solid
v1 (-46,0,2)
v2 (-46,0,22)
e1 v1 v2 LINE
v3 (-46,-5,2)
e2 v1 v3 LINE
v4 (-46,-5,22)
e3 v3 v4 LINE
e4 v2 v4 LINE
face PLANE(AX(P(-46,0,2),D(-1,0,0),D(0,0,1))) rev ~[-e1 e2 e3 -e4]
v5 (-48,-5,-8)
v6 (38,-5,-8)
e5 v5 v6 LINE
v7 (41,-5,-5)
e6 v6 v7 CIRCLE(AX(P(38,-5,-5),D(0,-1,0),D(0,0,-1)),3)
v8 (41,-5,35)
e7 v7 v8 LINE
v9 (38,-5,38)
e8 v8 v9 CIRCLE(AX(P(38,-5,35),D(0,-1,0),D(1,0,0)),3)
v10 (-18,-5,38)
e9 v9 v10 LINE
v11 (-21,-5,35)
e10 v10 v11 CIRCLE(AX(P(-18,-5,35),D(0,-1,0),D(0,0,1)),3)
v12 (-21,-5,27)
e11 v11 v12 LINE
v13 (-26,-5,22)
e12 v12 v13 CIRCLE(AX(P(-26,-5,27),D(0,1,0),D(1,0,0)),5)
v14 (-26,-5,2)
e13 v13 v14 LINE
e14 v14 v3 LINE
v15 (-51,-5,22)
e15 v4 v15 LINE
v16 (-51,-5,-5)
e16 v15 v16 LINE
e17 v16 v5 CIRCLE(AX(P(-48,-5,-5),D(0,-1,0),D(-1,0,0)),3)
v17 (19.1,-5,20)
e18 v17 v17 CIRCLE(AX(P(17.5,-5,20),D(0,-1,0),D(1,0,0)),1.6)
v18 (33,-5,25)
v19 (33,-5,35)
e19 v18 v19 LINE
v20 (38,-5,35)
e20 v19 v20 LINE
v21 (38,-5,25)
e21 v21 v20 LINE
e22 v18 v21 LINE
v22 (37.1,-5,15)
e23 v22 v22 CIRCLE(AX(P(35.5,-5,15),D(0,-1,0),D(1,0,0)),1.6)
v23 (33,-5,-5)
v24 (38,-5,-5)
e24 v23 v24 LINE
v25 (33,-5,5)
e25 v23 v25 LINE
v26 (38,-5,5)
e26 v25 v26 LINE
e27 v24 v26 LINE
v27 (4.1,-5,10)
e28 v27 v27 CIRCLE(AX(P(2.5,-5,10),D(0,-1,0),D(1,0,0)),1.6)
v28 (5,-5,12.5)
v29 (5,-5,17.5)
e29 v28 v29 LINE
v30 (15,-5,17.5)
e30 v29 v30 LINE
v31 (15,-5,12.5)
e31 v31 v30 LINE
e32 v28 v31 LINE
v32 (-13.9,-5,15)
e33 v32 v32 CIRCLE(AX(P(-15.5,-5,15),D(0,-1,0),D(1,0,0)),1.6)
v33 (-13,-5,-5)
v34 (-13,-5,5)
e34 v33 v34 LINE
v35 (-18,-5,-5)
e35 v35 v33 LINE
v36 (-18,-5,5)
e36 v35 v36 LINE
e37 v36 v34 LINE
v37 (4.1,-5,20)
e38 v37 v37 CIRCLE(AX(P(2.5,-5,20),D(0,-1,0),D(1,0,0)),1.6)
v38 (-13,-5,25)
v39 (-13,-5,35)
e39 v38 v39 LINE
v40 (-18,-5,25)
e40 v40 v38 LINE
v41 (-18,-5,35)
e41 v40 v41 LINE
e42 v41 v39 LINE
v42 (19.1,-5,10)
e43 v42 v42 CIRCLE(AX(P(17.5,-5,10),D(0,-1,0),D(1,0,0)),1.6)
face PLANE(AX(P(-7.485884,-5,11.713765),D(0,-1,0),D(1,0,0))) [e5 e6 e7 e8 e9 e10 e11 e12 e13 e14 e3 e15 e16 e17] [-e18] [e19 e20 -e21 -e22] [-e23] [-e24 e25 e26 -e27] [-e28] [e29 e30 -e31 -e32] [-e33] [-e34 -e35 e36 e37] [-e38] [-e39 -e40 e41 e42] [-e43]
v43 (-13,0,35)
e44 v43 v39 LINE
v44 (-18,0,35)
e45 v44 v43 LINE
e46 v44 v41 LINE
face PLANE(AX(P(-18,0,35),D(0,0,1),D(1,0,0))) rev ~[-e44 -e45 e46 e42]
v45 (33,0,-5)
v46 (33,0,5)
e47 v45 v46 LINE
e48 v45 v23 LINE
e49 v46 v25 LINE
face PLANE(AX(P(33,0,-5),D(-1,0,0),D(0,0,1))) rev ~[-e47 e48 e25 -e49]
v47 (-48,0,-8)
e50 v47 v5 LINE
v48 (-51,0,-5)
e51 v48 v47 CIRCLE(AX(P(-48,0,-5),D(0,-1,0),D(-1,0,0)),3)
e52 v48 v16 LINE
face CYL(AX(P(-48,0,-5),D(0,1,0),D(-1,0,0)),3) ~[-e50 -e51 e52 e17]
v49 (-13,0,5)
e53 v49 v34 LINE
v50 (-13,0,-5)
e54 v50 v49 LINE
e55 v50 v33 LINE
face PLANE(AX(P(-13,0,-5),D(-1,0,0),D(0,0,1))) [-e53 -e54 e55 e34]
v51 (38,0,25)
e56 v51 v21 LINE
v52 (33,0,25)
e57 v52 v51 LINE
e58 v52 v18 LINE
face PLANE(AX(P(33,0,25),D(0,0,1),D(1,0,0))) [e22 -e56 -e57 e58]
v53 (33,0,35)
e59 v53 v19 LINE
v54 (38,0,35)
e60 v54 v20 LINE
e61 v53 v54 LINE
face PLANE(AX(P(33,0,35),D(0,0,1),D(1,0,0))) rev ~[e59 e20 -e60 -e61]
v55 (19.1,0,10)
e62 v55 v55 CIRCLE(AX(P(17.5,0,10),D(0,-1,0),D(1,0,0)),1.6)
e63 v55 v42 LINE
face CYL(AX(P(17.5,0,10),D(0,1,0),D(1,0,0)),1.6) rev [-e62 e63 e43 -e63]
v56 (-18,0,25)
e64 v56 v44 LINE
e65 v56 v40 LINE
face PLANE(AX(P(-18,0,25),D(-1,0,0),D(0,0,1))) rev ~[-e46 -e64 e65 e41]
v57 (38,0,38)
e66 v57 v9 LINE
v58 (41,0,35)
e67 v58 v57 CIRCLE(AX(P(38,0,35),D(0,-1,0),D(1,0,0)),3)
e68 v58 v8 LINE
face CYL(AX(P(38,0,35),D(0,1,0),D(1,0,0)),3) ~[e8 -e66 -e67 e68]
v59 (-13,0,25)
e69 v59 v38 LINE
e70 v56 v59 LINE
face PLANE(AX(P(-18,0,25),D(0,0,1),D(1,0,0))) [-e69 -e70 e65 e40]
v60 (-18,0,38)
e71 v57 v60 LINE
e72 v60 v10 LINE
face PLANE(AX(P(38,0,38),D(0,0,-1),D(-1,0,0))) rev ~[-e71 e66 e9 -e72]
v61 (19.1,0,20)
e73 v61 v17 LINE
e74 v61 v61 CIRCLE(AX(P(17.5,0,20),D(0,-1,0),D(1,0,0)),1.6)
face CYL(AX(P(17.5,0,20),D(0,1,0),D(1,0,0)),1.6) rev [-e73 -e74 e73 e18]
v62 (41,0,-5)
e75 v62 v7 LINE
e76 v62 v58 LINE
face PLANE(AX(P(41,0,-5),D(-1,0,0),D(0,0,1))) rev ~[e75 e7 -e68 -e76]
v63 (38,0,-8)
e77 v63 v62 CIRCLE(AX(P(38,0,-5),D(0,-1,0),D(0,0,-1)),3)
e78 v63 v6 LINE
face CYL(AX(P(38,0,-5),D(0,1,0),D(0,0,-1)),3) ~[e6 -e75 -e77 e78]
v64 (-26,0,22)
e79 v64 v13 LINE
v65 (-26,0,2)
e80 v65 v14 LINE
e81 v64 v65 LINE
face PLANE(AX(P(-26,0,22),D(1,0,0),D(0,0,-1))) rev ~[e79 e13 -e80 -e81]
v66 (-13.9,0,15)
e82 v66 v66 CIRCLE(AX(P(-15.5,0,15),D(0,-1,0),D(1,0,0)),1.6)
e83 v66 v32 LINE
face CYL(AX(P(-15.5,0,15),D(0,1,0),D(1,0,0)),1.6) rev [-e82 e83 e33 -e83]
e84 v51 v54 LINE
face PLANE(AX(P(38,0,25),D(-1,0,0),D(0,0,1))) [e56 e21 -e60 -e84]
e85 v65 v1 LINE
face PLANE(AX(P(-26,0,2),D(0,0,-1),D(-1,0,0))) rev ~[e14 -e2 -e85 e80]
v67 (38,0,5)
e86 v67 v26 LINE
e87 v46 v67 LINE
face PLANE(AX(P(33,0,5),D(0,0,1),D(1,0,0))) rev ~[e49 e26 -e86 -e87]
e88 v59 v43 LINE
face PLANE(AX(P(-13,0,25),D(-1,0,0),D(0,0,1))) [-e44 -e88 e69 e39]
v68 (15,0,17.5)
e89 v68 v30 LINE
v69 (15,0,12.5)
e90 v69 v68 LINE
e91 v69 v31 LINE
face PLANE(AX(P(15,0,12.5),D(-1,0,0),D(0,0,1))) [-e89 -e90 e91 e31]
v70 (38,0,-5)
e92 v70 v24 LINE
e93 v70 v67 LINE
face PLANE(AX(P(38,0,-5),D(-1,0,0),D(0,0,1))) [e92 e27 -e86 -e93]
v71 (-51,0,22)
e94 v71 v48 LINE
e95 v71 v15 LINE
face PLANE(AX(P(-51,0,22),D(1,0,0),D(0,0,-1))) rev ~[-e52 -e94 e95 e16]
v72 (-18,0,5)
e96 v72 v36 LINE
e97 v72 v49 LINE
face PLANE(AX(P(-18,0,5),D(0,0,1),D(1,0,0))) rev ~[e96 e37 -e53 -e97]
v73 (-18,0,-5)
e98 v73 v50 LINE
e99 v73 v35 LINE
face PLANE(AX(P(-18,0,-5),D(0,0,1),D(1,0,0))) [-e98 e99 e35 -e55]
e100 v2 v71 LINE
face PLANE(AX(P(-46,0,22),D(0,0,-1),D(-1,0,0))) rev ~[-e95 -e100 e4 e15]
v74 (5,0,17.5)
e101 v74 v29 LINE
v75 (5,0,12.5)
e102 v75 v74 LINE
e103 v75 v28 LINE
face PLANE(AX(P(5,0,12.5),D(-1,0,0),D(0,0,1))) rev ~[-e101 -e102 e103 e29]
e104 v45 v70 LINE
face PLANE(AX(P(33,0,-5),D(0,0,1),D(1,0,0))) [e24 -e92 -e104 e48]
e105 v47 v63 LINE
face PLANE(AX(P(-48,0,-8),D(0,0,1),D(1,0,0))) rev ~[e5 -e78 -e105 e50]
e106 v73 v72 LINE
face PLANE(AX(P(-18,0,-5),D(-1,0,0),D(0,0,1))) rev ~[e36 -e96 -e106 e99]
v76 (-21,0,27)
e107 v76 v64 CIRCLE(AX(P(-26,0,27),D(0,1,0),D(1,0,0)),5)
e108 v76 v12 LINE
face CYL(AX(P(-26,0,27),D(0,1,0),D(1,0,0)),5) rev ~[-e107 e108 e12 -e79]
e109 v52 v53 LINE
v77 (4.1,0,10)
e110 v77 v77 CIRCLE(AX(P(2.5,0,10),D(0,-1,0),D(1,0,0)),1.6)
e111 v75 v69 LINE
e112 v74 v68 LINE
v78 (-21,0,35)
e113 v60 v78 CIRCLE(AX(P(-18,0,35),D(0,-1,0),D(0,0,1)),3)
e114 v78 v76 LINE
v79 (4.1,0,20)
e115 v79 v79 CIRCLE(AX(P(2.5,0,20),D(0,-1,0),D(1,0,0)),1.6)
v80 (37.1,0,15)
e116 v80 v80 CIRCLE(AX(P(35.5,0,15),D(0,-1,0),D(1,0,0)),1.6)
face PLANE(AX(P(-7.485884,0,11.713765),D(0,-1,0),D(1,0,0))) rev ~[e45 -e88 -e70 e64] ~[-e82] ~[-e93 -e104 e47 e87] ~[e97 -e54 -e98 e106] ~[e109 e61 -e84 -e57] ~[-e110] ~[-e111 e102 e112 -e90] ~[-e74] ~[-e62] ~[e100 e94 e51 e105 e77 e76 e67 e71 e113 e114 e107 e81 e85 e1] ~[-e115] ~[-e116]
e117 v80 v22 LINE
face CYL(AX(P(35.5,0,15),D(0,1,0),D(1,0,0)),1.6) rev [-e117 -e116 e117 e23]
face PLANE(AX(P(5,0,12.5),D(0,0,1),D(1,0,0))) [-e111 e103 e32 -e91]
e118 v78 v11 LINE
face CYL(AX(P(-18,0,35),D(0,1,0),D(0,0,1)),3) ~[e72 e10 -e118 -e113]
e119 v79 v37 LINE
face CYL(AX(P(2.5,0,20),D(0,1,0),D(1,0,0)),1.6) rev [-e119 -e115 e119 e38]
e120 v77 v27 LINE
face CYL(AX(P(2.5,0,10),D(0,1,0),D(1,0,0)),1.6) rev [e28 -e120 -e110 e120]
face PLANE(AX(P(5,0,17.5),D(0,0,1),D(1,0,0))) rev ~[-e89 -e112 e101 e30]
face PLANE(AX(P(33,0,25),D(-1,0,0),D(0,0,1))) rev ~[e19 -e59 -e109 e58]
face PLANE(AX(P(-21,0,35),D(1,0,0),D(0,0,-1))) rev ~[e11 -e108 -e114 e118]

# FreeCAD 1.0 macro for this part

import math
import FreeCAD as App
import Part
import Sketcher

V = App.Vector
Q = App.Units.Quantity

doc = App.newDocument("Part")
body = doc.addObject("PartDesign::Body", "Body")

# Sketch on XZ plane
sketch1 = body.newObject("Sketcher::SketchObject", "Sketch")
sketch1.AttachmentSupport = (doc.getObject("XZ_Plane"), [""])
sketch1.MapMode = "FlatFace"
sketch1.addGeometry([
    Part.LineSegment(V(-21, 35, 0), V(-21, 27, 0)),  # 0
    Part.ArcOfCircle(Part.Circle(V(-26, 27, 0), V(0, 0, 1), 5), math.radians(-90), math.radians(0)),  # 1
    Part.LineSegment(V(-26, 22, 0), V(-26, 2, 0)),  # 2
    Part.LineSegment(V(-26, 2, 0), V(-46, 2, 0)),  # 3
    Part.LineSegment(V(-46, 2, 0), V(-46, 22, 0)),  # 4
    Part.LineSegment(V(-46, 22, 0), V(-51, 22, 0)),  # 5
    Part.LineSegment(V(-51, 22, 0), V(-51, -5, 0)),  # 6
    Part.ArcOfCircle(Part.Circle(V(-48, -5, 0), V(0, 0, 1), 3), math.radians(180), math.radians(270)),  # 7
    Part.LineSegment(V(-48, -8, 0), V(38, -8, 0)),  # 8
    Part.ArcOfCircle(Part.Circle(V(38, -5, 0), V(0, 0, 1), 3), math.radians(-90), math.radians(0)),  # 9
    Part.LineSegment(V(41, -5, 0), V(41, 35, 0)),  # 10
    Part.ArcOfCircle(Part.Circle(V(38, 35, 0), V(0, 0, 1), 3), math.radians(0), math.radians(90)),  # 11
    Part.LineSegment(V(38, 38, 0), V(-18, 38, 0)),  # 12
    Part.ArcOfCircle(Part.Circle(V(-18, 35, 0), V(0, 0, 1), 3), math.radians(90), math.radians(180)),  # 13
    Part.LineSegment(V(-13, -5, 0), V(-18, -5, 0)),  # 14
    Part.LineSegment(V(-18, -5, 0), V(-18, 5, 0)),  # 15
    Part.LineSegment(V(-18, 5, 0), V(-13, 5, 0)),  # 16
    Part.LineSegment(V(-13, 5, 0), V(-13, -5, 0)),  # 17
    Part.Circle(V(2.5, 10, 0), V(0, 0, 1), 1.6),  # 18
    Part.LineSegment(V(38, -5, 0), V(33, -5, 0)),  # 19
    Part.LineSegment(V(33, -5, 0), V(33, 5, 0)),  # 20
    Part.LineSegment(V(33, 5, 0), V(38, 5, 0)),  # 21
    Part.LineSegment(V(38, 5, 0), V(38, -5, 0)),  # 22
    Part.Circle(V(17.5, 10, 0), V(0, 0, 1), 1.6),  # 23
    Part.Circle(V(-15.5, 15, 0), V(0, 0, 1), 1.6),  # 24
    Part.Circle(V(2.5, 20, 0), V(0, 0, 1), 1.6),  # 25
    Part.LineSegment(V(-13, 25, 0), V(-18, 25, 0)),  # 26
    Part.LineSegment(V(-18, 25, 0), V(-18, 35, 0)),  # 27
    Part.LineSegment(V(-18, 35, 0), V(-13, 35, 0)),  # 28
    Part.LineSegment(V(-13, 35, 0), V(-13, 25, 0)),  # 29
    Part.LineSegment(V(15, 12.5, 0), V(5, 12.5, 0)),  # 30
    Part.LineSegment(V(5, 12.5, 0), V(5, 17.5, 0)),  # 31
    Part.LineSegment(V(5, 17.5, 0), V(15, 17.5, 0)),  # 32
    Part.LineSegment(V(15, 17.5, 0), V(15, 12.5, 0)),  # 33
    Part.Circle(V(17.5, 20, 0), V(0, 0, 1), 1.6),  # 34
    Part.Circle(V(35.5, 15, 0), V(0, 0, 1), 1.6),  # 35
    Part.LineSegment(V(38, 25, 0), V(33, 25, 0)),  # 36
    Part.LineSegment(V(33, 25, 0), V(33, 35, 0)),  # 37
    Part.LineSegment(V(33, 35, 0), V(38, 35, 0)),  # 38
    Part.LineSegment(V(38, 35, 0), V(38, 25, 0)),  # 39
], False)
sketch1.addConstraint([
    Sketcher.Constraint("Tangent", 0, 2, 1, 2),
    Sketcher.Constraint("Coincident", 1, 1, 2, 1),
    Sketcher.Constraint("Coincident", 2, 2, 3, 1),
    Sketcher.Constraint("Coincident", 3, 2, 4, 1),
    Sketcher.Constraint("Coincident", 4, 2, 5, 1),
    Sketcher.Constraint("Coincident", 5, 2, 6, 1),
    Sketcher.Constraint("Tangent", 6, 2, 7, 1),
    Sketcher.Constraint("Tangent", 7, 2, 8, 1),
    Sketcher.Constraint("Tangent", 8, 2, 9, 1),
    Sketcher.Constraint("Tangent", 9, 2, 10, 1),
    Sketcher.Constraint("Tangent", 10, 2, 11, 1),
    Sketcher.Constraint("Tangent", 11, 2, 12, 1),
    Sketcher.Constraint("Tangent", 12, 2, 13, 1),
    Sketcher.Constraint("Tangent", 13, 2, 0, 1),
    Sketcher.Constraint("Coincident", 14, 2, 15, 1),
    Sketcher.Constraint("Coincident", 15, 2, 16, 1),
    Sketcher.Constraint("Coincident", 16, 2, 17, 1),
    Sketcher.Constraint("Coincident", 17, 2, 14, 1),
    Sketcher.Constraint("Coincident", 19, 2, 20, 1),
    Sketcher.Constraint("Coincident", 20, 2, 21, 1),
    Sketcher.Constraint("Coincident", 21, 2, 22, 1),
    Sketcher.Constraint("Coincident", 22, 2, 19, 1),
    Sketcher.Constraint("Coincident", 26, 2, 27, 1),
    Sketcher.Constraint("Coincident", 27, 2, 28, 1),
    Sketcher.Constraint("Coincident", 28, 2, 29, 1),
    Sketcher.Constraint("Coincident", 29, 2, 26, 1),
    Sketcher.Constraint("Coincident", 30, 2, 31, 1),
    Sketcher.Constraint("Coincident", 31, 2, 32, 1),
    Sketcher.Constraint("Coincident", 32, 2, 33, 1),
    Sketcher.Constraint("Coincident", 33, 2, 30, 1),
    Sketcher.Constraint("Coincident", 36, 2, 37, 1),
    Sketcher.Constraint("Coincident", 37, 2, 38, 1),
    Sketcher.Constraint("Coincident", 38, 2, 39, 1),
    Sketcher.Constraint("Coincident", 39, 2, 36, 1),
    Sketcher.Constraint("Vertical", 0),
    Sketcher.Constraint("Vertical", 2),
    Sketcher.Constraint("Horizontal", 3),
    Sketcher.Constraint("Vertical", 4),
    Sketcher.Constraint("Horizontal", 5),
    Sketcher.Constraint("Vertical", 6),
    Sketcher.Constraint("Horizontal", 8),
    Sketcher.Constraint("Vertical", 10),
    Sketcher.Constraint("Horizontal", 12),
    Sketcher.Constraint("Horizontal", 14),
    Sketcher.Constraint("Vertical", 15),
    Sketcher.Constraint("Horizontal", 16),
    Sketcher.Constraint("Vertical", 17),
    Sketcher.Constraint("Horizontal", 19),
    Sketcher.Constraint("Vertical", 20),
    Sketcher.Constraint("Horizontal", 21),
    Sketcher.Constraint("Vertical", 22),
    Sketcher.Constraint("Horizontal", 26),
    Sketcher.Constraint("Vertical", 27),
    Sketcher.Constraint("Horizontal", 28),
    Sketcher.Constraint("Vertical", 29),
    Sketcher.Constraint("Horizontal", 30),
    Sketcher.Constraint("Vertical", 31),
    Sketcher.Constraint("Horizontal", 32),
    Sketcher.Constraint("Vertical", 33),
    Sketcher.Constraint("Horizontal", 36),
    Sketcher.Constraint("Vertical", 37),
    Sketcher.Constraint("Horizontal", 38),
    Sketcher.Constraint("Vertical", 39),
    Sketcher.Constraint("Coincident", 22, 2, 9, 3),
    Sketcher.Constraint("Coincident", 27, 2, 13, 3),
    Sketcher.Constraint("Coincident", 38, 2, 11, 3),
    Sketcher.Constraint("Equal", 7, 9),
    Sketcher.Constraint("Equal", 9, 11),
    Sketcher.Constraint("Equal", 11, 13),
    Sketcher.Constraint("Equal", 18, 23),
    Sketcher.Constraint("Equal", 23, 24),
    Sketcher.Constraint("Equal", 24, 25),
    Sketcher.Constraint("Equal", 25, 34),
    Sketcher.Constraint("Equal", 34, 35),
    Sketcher.Constraint("Horizontal", 18, 3, 23, 3),
    Sketcher.Constraint("Horizontal", 25, 3, 34, 3),
    Sketcher.Constraint("Horizontal", 24, 3, 35, 3),
    Sketcher.Constraint("Horizontal", 1, 1, 4, 2),
    Sketcher.Constraint("Horizontal", 9, 2, 14, 2),
    Sketcher.Constraint("Horizontal", 16, 2, 20, 2),
    Sketcher.Constraint("Horizontal", 29, 2, 36, 2),
    Sketcher.Constraint("Vertical", 18, 3, 25, 3),
    Sketcher.Constraint("Vertical", 23, 3, 34, 3),
    Sketcher.Constraint("Vertical", 12, 2, 14, 2),
    Sketcher.Constraint("Vertical", 17, 2, 28, 2),
    Sketcher.Constraint("Vertical", 20, 2, 36, 2),
    Sketcher.Constraint("Equal", 5, 14),
    Sketcher.Constraint("Equal", 16, 19),
    Sketcher.Constraint("Equal", 3, 2),
    Sketcher.Constraint("Equal", 32, 15),
    Sketcher.Constraint("Equal", 22, 27),
    Sketcher.Constraint("Equal", 38, 31),
    Sketcher.Constraint("Radius", 1, Q("5 mm")),
    Sketcher.Constraint("Radius", 7, Q("3 mm")),
    Sketcher.Constraint("Diameter", 18, Q("3.2 mm")),
    Sketcher.Constraint("DistanceX", 3, 2, 3, 1, Q("20 mm")),
    Sketcher.Constraint("DistanceX", 5, 2, 5, 1, Q("5 mm")),
    Sketcher.Constraint("DistanceX", 8, 1, 8, 2, Q("86 mm")),
    Sketcher.Constraint("DistanceX", 12, 2, 12, 1, Q("56 mm")),
    Sketcher.Constraint("DistanceX", 30, 2, 30, 1, Q("10 mm")),
    Sketcher.Constraint("DistanceY", 0, 2, 0, 1, Q("8 mm")),
    Sketcher.Constraint("DistanceY", 6, 2, 6, 1, Q("27 mm")),
    Sketcher.Constraint("DistanceX", 1, 3, -1, 1, Q("26 mm")),
    Sketcher.Constraint("DistanceY", -1, 1, 1, 3, Q("27 mm")),
    Sketcher.Constraint("DistanceY", -1, 1, 18, 3, Q("10 mm")),
    Sketcher.Constraint("DistanceY", -1, 1, 24, 3, Q("15 mm")),
    Sketcher.Constraint("DistanceY", -1, 1, 25, 3, Q("20 mm")),
    Sketcher.Constraint("DistanceX", -1, 1, 30, 2, Q("5 mm")),
    Sketcher.Constraint("DistanceX", 18, 3, 23, 3, Q("15 mm")),
    Sketcher.Constraint("DistanceX", 24, 3, 18, 3, Q("18 mm")),
    Sketcher.Constraint("DistanceX", 23, 3, 35, 3, Q("18 mm")),
    Sketcher.Constraint("DistanceX", -1, 1, 18, 3, Q("2.5 mm")),
    Sketcher.Constraint("DistanceY", -1, 1, 30, 2, Q("12.5 mm")),
])
pad1 = body.newObject("PartDesign::Pad", "Pad")
pad1.Profile = sketch1
pad1.Length = 5

doc.recompute()
